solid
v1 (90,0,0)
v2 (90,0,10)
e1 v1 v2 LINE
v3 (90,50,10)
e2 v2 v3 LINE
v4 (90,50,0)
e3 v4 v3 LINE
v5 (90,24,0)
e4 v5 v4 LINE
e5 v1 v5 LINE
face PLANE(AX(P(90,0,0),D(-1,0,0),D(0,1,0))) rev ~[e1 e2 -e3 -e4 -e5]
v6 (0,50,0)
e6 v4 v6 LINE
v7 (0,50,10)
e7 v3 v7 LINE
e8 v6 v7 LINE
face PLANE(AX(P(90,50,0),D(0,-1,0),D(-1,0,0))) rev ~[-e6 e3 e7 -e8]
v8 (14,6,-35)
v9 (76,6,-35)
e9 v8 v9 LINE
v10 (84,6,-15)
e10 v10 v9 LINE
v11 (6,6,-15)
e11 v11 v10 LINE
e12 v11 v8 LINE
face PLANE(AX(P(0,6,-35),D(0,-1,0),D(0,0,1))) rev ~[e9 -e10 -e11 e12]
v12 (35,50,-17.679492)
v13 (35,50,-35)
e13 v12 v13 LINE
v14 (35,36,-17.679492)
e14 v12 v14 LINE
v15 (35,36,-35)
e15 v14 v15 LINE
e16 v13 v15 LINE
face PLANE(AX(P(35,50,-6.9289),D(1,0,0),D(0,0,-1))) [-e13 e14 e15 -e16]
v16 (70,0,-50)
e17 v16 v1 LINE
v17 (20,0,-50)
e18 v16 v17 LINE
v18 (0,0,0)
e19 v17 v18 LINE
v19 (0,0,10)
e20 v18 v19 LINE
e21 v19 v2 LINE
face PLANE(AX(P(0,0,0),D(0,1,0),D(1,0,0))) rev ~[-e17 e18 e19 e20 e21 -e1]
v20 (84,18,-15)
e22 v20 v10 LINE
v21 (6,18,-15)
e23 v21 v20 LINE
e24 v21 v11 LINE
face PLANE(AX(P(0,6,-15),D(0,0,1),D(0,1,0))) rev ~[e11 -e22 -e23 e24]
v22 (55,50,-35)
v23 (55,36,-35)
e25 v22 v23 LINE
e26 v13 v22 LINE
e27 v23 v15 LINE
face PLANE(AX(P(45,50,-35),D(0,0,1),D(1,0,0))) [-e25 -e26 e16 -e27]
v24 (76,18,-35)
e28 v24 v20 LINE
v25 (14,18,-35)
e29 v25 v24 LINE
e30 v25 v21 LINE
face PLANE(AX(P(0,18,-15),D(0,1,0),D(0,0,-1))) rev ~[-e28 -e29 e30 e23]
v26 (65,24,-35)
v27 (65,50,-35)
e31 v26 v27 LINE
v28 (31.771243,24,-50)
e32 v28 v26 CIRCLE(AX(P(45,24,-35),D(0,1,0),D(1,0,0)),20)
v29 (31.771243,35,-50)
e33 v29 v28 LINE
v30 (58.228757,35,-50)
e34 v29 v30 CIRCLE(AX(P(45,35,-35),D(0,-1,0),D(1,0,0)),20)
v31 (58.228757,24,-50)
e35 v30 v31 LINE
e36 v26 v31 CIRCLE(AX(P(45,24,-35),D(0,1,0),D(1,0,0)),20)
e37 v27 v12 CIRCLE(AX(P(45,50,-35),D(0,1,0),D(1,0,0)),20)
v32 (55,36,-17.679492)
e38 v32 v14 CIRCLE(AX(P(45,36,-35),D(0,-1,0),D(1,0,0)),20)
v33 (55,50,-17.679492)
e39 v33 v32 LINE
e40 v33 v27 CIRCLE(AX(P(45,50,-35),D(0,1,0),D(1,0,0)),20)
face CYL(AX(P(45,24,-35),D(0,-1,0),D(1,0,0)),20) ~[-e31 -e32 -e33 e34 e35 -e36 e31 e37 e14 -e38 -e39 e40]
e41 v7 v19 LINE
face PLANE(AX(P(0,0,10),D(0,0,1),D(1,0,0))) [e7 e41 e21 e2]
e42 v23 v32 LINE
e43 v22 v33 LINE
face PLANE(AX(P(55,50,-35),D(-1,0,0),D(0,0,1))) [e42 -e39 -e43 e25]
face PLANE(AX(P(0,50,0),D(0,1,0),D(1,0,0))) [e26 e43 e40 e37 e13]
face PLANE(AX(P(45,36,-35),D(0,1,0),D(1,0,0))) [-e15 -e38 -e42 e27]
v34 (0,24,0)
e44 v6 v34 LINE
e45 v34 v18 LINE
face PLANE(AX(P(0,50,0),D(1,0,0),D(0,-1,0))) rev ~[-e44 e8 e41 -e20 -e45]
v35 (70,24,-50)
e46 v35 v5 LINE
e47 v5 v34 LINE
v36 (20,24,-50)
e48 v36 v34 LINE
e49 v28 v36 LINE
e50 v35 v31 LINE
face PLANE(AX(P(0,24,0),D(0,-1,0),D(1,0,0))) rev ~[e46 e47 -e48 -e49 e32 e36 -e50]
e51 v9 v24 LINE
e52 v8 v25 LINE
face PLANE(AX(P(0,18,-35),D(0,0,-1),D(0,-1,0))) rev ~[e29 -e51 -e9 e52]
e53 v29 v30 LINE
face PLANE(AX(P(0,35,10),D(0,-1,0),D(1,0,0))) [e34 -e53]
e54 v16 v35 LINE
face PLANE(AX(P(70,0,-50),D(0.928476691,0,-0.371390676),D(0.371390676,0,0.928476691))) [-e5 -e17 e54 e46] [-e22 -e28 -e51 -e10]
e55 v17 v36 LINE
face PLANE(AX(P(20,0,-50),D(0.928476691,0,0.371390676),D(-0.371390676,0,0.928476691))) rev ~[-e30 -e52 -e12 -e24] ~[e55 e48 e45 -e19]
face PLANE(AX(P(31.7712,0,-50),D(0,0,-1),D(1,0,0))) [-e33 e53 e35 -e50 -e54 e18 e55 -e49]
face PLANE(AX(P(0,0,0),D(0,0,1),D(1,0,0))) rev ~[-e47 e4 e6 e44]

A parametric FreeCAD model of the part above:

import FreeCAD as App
import Part
import Sketcher
Q = App.Units.Quantity

doc = App.newDocument("Part")
params = doc.addObject("Spreadsheet::Sheet", "Params")
for row, (alias, value) in enumerate([
    ("sketch1_width", "90 mm"),
    ("sketch1_height", "50 mm"),
    ("pad1_length", "10 mm"),
    ("sketch2_width", "50 mm"),
    ("sketch2_width2", "90 mm"),
    ("pad2_length", "24 mm"),
    ("sketch3_diameter", "40 mm"),
    ("pad3_length", "26 mm"),
    ("sketch4_width", "50 mm"),
    ("pocket1_length", "35 mm"),
    ("sketch5_width", "12 mm"),
    ("sketch5_height", "20 mm"),
    ("pocket2_length", "95 mm"),
    ("sketch6_width", "20 mm"),
    ("pocket3_length", "14 mm"),
], start=1):
    params.set(f"A{row}", alias)
    params.set(f"B{row}", "=" + value)
    params.setAlias(f"B{row}", alias)

body = doc.addObject("PartDesign::Body", "Body")

# Sketch on XY plane
sketch1 = body.newObject("Sketcher::SketchObject", "Sketch")
sketch1.AttachmentSupport = (doc.getObject("XY_Plane"), [""])
sketch1.MapMode = "FlatFace"
sketch1.addGeometry([
    Part.LineSegment(App.Vector(0, 50, 0), App.Vector(0, 0, 0)),
    Part.LineSegment(App.Vector(0, 0, 0), App.Vector(90, 0, 0)),
    Part.LineSegment(App.Vector(90, 0, 0), App.Vector(90, 50, 0)),
    Part.LineSegment(App.Vector(90, 50, 0), App.Vector(0, 50, 0)),
], False)
sketch1.addConstraint([
    Sketcher.Constraint("Coincident", 0, 2, 1, 1),
    Sketcher.Constraint("Coincident", 1, 2, 2, 1),
    Sketcher.Constraint("Coincident", 2, 2, 3, 1),
    Sketcher.Constraint("Coincident", 3, 2, 0, 1),
    Sketcher.Constraint("Vertical", 0),
    Sketcher.Constraint("Horizontal", 1),
    Sketcher.Constraint("Vertical", 2),
    Sketcher.Constraint("Horizontal", 3),
    Sketcher.Constraint("Coincident", 0, 2, -1, 1),
    Sketcher.Constraint("DistanceX", 1, 1, 1, 2, Q("90 mm")),
    Sketcher.Constraint("DistanceY", 0, 2, 0, 1, Q("50 mm")),
])
sketch1.setExpression("Constraints[9]", "Params.sketch1_width")
sketch1.setExpression("Constraints[10]", "Params.sketch1_height")
pad1 = body.newObject("PartDesign::Pad", "Pad")
pad1.Profile = sketch1
pad1.setExpression("Length", "Params.pad1_length")

# Sketch on XZ plane
sketch2 = body.newObject("Sketcher::SketchObject", "Sketch001")
sketch2.AttachmentSupport = (doc.getObject("XZ_Plane"), [""])
sketch2.MapMode = "FlatFace"
sketch2.addGeometry([
    Part.LineSegment(App.Vector(70, -50, 0), App.Vector(90, 0, 0)),
    Part.LineSegment(App.Vector(90, 0, 0), App.Vector(0, 0, 0)),
    Part.LineSegment(App.Vector(0, 0, 0), App.Vector(20, -50, 0)),
    Part.LineSegment(App.Vector(20, -50, 0), App.Vector(70, -50, 0)),
], False)
sketch2.addConstraint([
    Sketcher.Constraint("Coincident", 0, 2, 1, 1),
    Sketcher.Constraint("Coincident", 1, 2, 2, 1),
    Sketcher.Constraint("Coincident", 2, 2, 3, 1),
    Sketcher.Constraint("Coincident", 3, 2, 0, 1),
    Sketcher.Constraint("Horizontal", 1),
    Sketcher.Constraint("Horizontal", 3),
    Sketcher.Constraint("Coincident", 1, 2, -1, 1),
    Sketcher.Constraint("Equal", 0, 2),
    Sketcher.Constraint("DistanceX", 3, 1, 3, 2, Q("50 mm")),
    Sketcher.Constraint("DistanceY", 2, 2, -1, 1, Q("50 mm")),
    Sketcher.Constraint("DistanceX", 1, 2, 1, 1, Q("90 mm")),
])
sketch2.setExpression("Constraints[8]", "Params.sketch2_width")
sketch2.setExpression("Constraints[10]", "Params.sketch2_width2")
pad2 = body.newObject("PartDesign::Pad", "Pad001")
pad2.Profile = sketch2
pad2.setExpression("Length", "Params.pad2_length")
pad2.Reversed = True

# Sketch on XZ plane
sketch3 = body.newObject("Sketcher::SketchObject", "Sketch002")
sketch3.AttachmentSupport = (doc.getObject("XZ_Plane"), [""])
sketch3.MapMode = "FlatFace"
sketch3.AttachmentOffset = App.Placement(App.Vector(0, 0, -24), App.Rotation())
sketch3.addGeometry(Part.Circle(App.Vector(45, -35, 0), App.Vector(0, 0, 1), 20), False)
sketch3.addConstraint([
    Sketcher.Constraint("Diameter", 0, Q("40 mm")),
    Sketcher.Constraint("DistanceX", -1, 1, 0, 3, Q("45 mm")),
    Sketcher.Constraint("DistanceY", 0, 3, -1, 1, Q("35 mm")),
])
sketch3.setExpression("Constraints[0]", "Params.sketch3_diameter")
pad3 = body.newObject("PartDesign::Pad", "Pad002")
pad3.Profile = sketch3
pad3.setExpression("Length", "Params.pad3_length")
pad3.Reversed = True

# Sketch on XZ plane
sketch4 = body.newObject("Sketcher::SketchObject", "Sketch003")
sketch4.AttachmentSupport = (doc.getObject("XZ_Plane"), [""])
sketch4.MapMode = "FlatFace"
sketch4.addGeometry([
    Part.LineSegment(App.Vector(70, -57, 0), App.Vector(70, -50, 0)),
    Part.LineSegment(App.Vector(70, -50, 0), App.Vector(20, -50, 0)),
    Part.LineSegment(App.Vector(20, -50, 0), App.Vector(20, -57, 0)),
    Part.LineSegment(App.Vector(20, -57, 0), App.Vector(70, -57, 0)),
], False)
sketch4.addConstraint([
    Sketcher.Constraint("Coincident", 0, 2, 1, 1),
    Sketcher.Constraint("Coincident", 1, 2, 2, 1),
    Sketcher.Constraint("Coincident", 2, 2, 3, 1),
    Sketcher.Constraint("Coincident", 3, 2, 0, 1),
    Sketcher.Constraint("Vertical", 0),
    Sketcher.Constraint("Horizontal", 1),
    Sketcher.Constraint("Vertical", 2),
    Sketcher.Constraint("Horizontal", 3),
    Sketcher.Constraint("DistanceX", 1, 2, 1, 1, Q("50 mm")),
    Sketcher.Constraint("DistanceX", -1, 1, 0, 2, Q("70 mm")),
    Sketcher.Constraint("DistanceY", 0, 2, -1, 1, Q("50 mm")),
    Sketcher.Constraint("DistanceY", 0, 1, 0, 2, Q("6.9782 mm")),
])
sketch4.setExpression("Constraints[8]", "Params.sketch4_width")
pocket1 = body.newObject("PartDesign::Pocket", "Pocket")
pocket1.Profile = sketch4
pocket1.setExpression("Length", "Params.pocket1_length")

# Sketch on YZ plane
sketch5 = body.newObject("Sketcher::SketchObject", "Sketch004")
sketch5.AttachmentSupport = (doc.getObject("YZ_Plane"), [""])
sketch5.MapMode = "FlatFace"
sketch5.addGeometry([
    Part.LineSegment(App.Vector(6, -35, 0), App.Vector(6, -15, 0)),
    Part.LineSegment(App.Vector(6, -15, 0), App.Vector(18, -15, 0)),
    Part.LineSegment(App.Vector(18, -15, 0), App.Vector(18, -35, 0)),
    Part.LineSegment(App.Vector(18, -35, 0), App.Vector(6, -35, 0)),
], False)
sketch5.addConstraint([
    Sketcher.Constraint("Coincident", 0, 2, 1, 1),
    Sketcher.Constraint("Coincident", 1, 2, 2, 1),
    Sketcher.Constraint("Coincident", 2, 2, 3, 1),
    Sketcher.Constraint("Coincident", 3, 2, 0, 1),
    Sketcher.Constraint("Vertical", 0),
    Sketcher.Constraint("Horizontal", 1),
    Sketcher.Constraint("Vertical", 2),
    Sketcher.Constraint("Horizontal", 3),
    Sketcher.Constraint("DistanceX", 1, 1, 1, 2, Q("12 mm")),
    Sketcher.Constraint("DistanceY", 0, 1, 0, 2, Q("20 mm")),
    Sketcher.Constraint("DistanceX", -1, 1, 0, 2, Q("6 mm")),
    Sketcher.Constraint("DistanceY", 0, 2, -1, 1, Q("15 mm")),
])
sketch5.setExpression("Constraints[8]", "Params.sketch5_width")
sketch5.setExpression("Constraints[9]", "Params.sketch5_height")
pocket2 = body.newObject("PartDesign::Pocket", "Pocket001")
pocket2.Profile = sketch5
pocket2.setExpression("Length", "Params.pocket2_length")
pocket2.Reversed = True

# Sketch on XZ plane
sketch6 = body.newObject("Sketcher::SketchObject", "Sketch005")
sketch6.AttachmentSupport = (doc.getObject("XZ_Plane"), [""])
sketch6.MapMode = "FlatFace"
sketch6.AttachmentOffset = App.Placement(App.Vector(0, 0, -50), App.Rotation())
sketch6.addGeometry([
    Part.LineSegment(App.Vector(55, -35, 0), App.Vector(35, -35, 0)),
    Part.LineSegment(App.Vector(35, -35, 0), App.Vector(35, -7, 0)),
    Part.LineSegment(App.Vector(35, -7, 0), App.Vector(55, -7, 0)),
    Part.LineSegment(App.Vector(55, -7, 0), App.Vector(55, -35, 0)),
], False)
sketch6.addConstraint([
    Sketcher.Constraint("Coincident", 0, 2, 1, 1),
    Sketcher.Constraint("Coincident", 1, 2, 2, 1),
    Sketcher.Constraint("Coincident", 2, 2, 3, 1),
    Sketcher.Constraint("Coincident", 3, 2, 0, 1),
    Sketcher.Constraint("Horizontal", 0),
    Sketcher.Constraint("Vertical", 1),
    Sketcher.Constraint("Horizontal", 2),
    Sketcher.Constraint("Vertical", 3),
    Sketcher.Constraint("DistanceX", 0, 2, 0, 1, Q("20 mm")),
    Sketcher.Constraint("DistanceX", -1, 1, 0, 2, Q("35 mm")),
    Sketcher.Constraint("DistanceY", 0, 2, -1, 1, Q("35 mm")),
    Sketcher.Constraint("DistanceY", 1, 1, 1, 2, Q("28.071 mm")),
])
sketch6.setExpression("Constraints[8]", "Params.sketch6_width")
pocket3 = body.newObject("PartDesign::Pocket", "Pocket002")
pocket3.Profile = sketch6
pocket3.setExpression("Length", "Params.pocket3_length")
pocket3.Reversed = True

doc.recompute()
